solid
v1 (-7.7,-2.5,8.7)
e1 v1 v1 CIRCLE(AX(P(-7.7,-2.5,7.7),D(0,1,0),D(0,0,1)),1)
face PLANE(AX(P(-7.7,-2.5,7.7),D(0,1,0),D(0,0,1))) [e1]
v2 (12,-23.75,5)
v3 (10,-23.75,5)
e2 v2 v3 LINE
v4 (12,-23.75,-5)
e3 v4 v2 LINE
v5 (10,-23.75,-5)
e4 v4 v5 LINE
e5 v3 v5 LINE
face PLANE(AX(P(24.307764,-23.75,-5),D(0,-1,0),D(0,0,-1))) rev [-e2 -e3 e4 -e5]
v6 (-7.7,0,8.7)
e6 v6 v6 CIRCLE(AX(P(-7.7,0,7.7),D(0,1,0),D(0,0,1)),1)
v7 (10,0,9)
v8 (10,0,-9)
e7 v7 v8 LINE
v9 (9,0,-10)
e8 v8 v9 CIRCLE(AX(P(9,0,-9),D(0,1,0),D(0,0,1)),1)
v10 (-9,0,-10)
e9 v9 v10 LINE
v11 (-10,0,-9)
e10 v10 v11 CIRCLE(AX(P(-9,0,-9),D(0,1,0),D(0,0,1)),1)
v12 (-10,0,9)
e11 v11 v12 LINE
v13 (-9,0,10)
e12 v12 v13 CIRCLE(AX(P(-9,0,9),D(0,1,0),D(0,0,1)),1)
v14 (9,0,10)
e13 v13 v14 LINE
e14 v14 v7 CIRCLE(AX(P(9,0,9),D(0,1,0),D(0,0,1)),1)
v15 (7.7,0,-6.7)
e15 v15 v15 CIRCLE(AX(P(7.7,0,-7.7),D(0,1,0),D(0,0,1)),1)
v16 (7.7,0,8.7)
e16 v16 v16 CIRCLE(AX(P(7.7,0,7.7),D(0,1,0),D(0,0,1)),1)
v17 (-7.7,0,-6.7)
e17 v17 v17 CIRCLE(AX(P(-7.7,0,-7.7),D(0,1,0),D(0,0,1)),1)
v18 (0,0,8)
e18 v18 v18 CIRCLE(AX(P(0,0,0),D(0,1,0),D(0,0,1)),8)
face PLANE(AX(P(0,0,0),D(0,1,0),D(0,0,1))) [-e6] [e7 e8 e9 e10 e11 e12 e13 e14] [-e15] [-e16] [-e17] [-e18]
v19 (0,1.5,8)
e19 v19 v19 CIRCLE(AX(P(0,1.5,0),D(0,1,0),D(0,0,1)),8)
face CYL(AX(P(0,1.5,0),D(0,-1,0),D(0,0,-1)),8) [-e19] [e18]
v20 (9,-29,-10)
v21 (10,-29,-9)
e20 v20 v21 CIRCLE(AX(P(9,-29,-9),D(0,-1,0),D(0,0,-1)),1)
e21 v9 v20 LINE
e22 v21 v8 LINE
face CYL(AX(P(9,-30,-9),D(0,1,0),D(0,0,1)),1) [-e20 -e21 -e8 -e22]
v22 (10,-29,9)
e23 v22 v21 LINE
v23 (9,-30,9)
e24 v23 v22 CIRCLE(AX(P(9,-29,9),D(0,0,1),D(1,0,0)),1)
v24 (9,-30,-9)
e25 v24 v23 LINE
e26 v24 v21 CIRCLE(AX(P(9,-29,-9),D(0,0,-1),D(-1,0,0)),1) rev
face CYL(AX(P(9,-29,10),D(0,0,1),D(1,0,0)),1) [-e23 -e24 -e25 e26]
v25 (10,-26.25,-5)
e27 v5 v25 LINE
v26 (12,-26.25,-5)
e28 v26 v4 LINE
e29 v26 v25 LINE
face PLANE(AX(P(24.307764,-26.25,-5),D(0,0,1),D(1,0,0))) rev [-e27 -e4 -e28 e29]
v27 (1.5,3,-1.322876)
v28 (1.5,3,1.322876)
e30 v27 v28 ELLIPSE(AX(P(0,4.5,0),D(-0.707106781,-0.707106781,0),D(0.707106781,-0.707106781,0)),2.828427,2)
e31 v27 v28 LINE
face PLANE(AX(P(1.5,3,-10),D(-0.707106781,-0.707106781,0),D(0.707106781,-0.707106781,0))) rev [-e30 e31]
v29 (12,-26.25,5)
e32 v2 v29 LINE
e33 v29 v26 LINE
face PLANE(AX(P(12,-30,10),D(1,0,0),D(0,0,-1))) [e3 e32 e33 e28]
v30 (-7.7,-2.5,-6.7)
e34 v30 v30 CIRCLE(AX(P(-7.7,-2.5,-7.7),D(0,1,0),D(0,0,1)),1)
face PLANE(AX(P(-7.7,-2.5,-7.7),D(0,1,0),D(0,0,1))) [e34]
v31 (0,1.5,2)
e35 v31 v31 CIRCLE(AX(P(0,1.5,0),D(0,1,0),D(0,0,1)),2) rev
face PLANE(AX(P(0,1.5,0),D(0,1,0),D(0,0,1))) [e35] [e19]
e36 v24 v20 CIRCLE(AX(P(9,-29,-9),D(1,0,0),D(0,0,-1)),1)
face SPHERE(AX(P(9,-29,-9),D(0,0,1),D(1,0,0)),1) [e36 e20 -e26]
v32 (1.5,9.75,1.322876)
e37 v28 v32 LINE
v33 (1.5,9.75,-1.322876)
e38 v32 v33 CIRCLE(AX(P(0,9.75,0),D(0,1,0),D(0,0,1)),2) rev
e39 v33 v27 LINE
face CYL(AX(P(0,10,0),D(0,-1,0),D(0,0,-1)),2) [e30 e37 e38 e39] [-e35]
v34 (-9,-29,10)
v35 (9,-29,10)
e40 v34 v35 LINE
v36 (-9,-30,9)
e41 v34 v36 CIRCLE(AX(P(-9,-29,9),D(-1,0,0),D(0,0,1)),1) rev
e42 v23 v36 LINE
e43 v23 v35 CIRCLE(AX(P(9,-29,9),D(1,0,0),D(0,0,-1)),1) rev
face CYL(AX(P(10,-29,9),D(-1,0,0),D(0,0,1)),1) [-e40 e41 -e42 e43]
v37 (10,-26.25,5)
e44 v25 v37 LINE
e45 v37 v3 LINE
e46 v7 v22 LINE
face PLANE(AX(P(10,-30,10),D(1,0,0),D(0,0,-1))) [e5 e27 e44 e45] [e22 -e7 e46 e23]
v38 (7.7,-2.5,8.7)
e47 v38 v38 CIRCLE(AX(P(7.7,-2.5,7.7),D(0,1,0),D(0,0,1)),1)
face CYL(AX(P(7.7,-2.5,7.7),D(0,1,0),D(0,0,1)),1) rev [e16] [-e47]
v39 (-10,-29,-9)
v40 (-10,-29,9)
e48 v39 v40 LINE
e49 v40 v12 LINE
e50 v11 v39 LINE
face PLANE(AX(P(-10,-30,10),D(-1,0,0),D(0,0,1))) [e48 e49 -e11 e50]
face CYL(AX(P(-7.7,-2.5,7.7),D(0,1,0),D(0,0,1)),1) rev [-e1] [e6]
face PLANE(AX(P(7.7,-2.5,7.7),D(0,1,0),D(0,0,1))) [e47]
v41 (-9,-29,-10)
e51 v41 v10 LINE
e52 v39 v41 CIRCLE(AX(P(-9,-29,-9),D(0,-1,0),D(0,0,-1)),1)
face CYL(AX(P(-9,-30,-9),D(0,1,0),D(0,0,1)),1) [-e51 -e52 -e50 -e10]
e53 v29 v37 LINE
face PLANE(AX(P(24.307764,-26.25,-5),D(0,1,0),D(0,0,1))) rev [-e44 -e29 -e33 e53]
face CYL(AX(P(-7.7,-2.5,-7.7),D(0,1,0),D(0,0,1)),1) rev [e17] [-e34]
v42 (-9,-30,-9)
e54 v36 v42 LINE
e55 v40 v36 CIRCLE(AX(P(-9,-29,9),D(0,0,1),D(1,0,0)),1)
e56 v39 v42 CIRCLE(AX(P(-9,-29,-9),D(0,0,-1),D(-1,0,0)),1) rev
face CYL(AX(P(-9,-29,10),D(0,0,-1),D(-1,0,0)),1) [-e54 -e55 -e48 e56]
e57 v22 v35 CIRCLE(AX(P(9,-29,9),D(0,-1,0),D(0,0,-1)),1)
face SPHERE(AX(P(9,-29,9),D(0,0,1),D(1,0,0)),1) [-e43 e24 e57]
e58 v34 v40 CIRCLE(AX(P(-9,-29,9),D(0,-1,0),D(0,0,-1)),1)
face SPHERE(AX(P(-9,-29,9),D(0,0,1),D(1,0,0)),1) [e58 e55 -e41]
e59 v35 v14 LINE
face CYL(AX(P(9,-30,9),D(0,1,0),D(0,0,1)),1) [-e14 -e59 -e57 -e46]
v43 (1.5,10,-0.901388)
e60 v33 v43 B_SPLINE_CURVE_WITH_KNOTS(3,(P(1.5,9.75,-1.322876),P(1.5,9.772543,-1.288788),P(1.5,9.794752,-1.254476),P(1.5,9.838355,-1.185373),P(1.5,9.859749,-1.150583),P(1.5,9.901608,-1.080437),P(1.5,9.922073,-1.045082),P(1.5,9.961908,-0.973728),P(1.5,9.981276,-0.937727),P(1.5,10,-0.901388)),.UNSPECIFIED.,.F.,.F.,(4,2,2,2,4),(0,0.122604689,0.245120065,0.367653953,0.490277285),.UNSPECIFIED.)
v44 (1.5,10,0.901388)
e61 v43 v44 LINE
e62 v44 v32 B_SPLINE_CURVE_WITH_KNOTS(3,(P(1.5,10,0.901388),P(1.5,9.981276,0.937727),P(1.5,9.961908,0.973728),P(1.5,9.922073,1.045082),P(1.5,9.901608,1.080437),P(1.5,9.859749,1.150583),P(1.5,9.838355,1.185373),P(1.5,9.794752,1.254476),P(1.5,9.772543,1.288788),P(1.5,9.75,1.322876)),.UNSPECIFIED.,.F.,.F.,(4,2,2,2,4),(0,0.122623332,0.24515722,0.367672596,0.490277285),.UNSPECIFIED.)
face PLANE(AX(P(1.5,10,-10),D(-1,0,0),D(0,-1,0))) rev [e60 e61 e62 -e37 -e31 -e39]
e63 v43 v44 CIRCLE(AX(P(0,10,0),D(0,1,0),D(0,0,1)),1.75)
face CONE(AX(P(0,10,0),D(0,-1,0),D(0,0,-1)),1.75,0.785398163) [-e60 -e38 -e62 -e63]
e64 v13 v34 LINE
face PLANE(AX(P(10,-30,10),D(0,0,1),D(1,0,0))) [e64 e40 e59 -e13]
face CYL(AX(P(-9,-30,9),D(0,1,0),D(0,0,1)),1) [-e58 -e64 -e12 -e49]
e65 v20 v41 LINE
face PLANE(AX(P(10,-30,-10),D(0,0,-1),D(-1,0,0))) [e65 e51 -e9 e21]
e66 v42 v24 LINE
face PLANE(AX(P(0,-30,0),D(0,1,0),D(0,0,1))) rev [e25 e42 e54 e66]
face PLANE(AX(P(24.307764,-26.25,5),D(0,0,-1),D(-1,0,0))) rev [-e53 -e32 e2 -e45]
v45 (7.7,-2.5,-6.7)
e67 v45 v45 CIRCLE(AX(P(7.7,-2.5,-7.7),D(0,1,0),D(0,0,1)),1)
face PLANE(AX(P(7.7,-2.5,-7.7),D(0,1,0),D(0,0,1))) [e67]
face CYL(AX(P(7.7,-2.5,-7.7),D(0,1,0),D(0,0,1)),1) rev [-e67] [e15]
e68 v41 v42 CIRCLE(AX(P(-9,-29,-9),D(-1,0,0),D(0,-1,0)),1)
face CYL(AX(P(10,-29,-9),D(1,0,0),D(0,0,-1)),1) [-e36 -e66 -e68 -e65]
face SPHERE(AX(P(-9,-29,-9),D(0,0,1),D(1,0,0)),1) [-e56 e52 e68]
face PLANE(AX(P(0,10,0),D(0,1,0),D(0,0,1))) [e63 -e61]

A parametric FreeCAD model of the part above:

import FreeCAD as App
import Part
import Sketcher
from FreeCAD import Vector
Q = App.Units.Quantity


def edges_at(feature, points):
    """Names of the edges that pass closest to the given points."""
    edges = feature.Shape.Edges
    near = lambda p: min(range(len(edges)), key=lambda i: edges[i].distToShape(Part.Vertex(*p))[0])
    return sorted({f"Edge{near(p) + 1}" for p in points})


def add_polygon(sketch, points):
    """Adds a closed chain of lines whose ends are joined by coincident constraints."""
    first, n = sketch.GeometryCount, len(points)
    for a, b in zip(points, points[1:] + points[:1]):
        sketch.addGeometry(Part.LineSegment(App.Vector(*a, 0), App.Vector(*b, 0)), False)
    for i in range(n):
        sketch.addConstraint(Sketcher.Constraint("Coincident", first + i, 2, first + (i + 1) % n, 1))

doc = App.newDocument("Part")
body = doc.addObject("PartDesign::Body", "Body")

sketch1 = body.newObject("Sketcher::SketchObject", "Sketch")
sketch1.AttachmentSupport = (doc.getObject("XZ_Plane"), [""])
sketch1.MapMode = "FlatFace"
add_polygon(sketch1, [(-10, -10), (-10, 10), (10, 10), (10, -10)])
sketch1.addConstraint(Sketcher.Constraint("Vertical", 0))
sketch1.addConstraint(Sketcher.Constraint("Horizontal", 1))
sketch1.addConstraint(Sketcher.Constraint("Vertical", 2))
sketch1.addConstraint(Sketcher.Constraint("Horizontal", 3))
sketch1.addConstraint(Sketcher.Constraint("Symmetric", 0, 2, 2, 2, -1, 1))
sketch1.addConstraint(Sketcher.Constraint("Equal", 3, 0))
sketch1.addConstraint(Sketcher.Constraint("DistanceX", 1, 1, 1, 2, 20.0))
pad1 = body.newObject("PartDesign::Pad", "Pad")
pad1.Profile = sketch1
pad1.Length = 30

sketch2 = body.newObject("Sketcher::SketchObject", "Sketch001")
sketch2.AttachmentSupport = (doc.getObject("XZ_Plane"), [""])
sketch2.MapMode = "FlatFace"
sketch2.addGeometry(Part.Circle(Vector(-7.7, -7.7, 0), Vector(0, 0, 1), 1), False)
sketch2.addGeometry(Part.Circle(Vector(7.7, -7.7, 0), Vector(0, 0, 1), 1), False)
sketch2.addGeometry(Part.Circle(Vector(7.7, 7.7, 0), Vector(0, 0, 1), 1), False)
sketch2.addGeometry(Part.Circle(Vector(-7.7, 7.7, 0), Vector(0, 0, 1), 1), False)
sketch2.addConstraint(Sketcher.Constraint("Equal", 0, 1))
sketch2.addConstraint(Sketcher.Constraint("Equal", 1, 2))
sketch2.addConstraint(Sketcher.Constraint("Equal", 2, 3))
sketch2.addConstraint(Sketcher.Constraint("Symmetric", 0, 3, 2, 3, -1, 1))
sketch2.addConstraint(Sketcher.Constraint("Symmetric", 1, 3, 3, 3, -1, 1))
sketch2.addConstraint(Sketcher.Constraint("Symmetric", 0, 3, 1, 3, -2))
sketch2.addConstraint(Sketcher.Constraint("Diameter", 0, 2.0))
sketch2.addConstraint(Sketcher.Constraint("DistanceX", 0, 3, -1, 1, 7.7))
sketch2.addConstraint(Sketcher.Constraint("DistanceY", 0, 3, -1, 1, 7.7))
pocket1 = body.newObject("PartDesign::Pocket", "Pocket")
pocket1.Profile = sketch2
pocket1.Length = 2.5
pocket1.Reversed = True

sketch3 = body.newObject("Sketcher::SketchObject", "Sketch002")
sketch3.AttachmentSupport = (doc.getObject("XZ_Plane"), [""])
sketch3.MapMode = "FlatFace"
sketch3.addGeometry(Part.Circle(Vector(0, 0, 0), Vector(0, 0, 1), 8), False)
sketch3.addConstraint(Sketcher.Constraint("Coincident", 0, 3, -1, 1))
sketch3.addConstraint(Sketcher.Constraint("Diameter", 0, 16.0))
pad2 = body.newObject("PartDesign::Pad", "Pad001")
pad2.Profile = sketch3
pad2.Length = 1.5
pad2.Reversed = True

sketch4 = body.newObject("Sketcher::SketchObject", "Sketch003")
sketch4.AttachmentSupport = (doc.getObject("XZ_Plane"), [""])
sketch4.MapMode = "FlatFace"
sketch4.addGeometry(Part.Circle(Vector(0, 0, 0), Vector(0, 0, 1), 2), False)
sketch4.addConstraint(Sketcher.Constraint("Coincident", 0, 3, -1, 1))
sketch4.addConstraint(Sketcher.Constraint("Diameter", 0, 4.0))
pad3 = body.newObject("PartDesign::Pad", "Pad002")
pad3.Profile = sketch4
pad3.Length = 10
pad3.Reversed = True

sketch5 = body.newObject("Sketcher::SketchObject", "Sketch004")
sketch5.AttachmentSupport = (doc.getObject("XY_Plane"), [""])
sketch5.MapMode = "FlatFace"
add_polygon(sketch5, [(2, 10), (1.5, 10), (1.5, 3), (2, 2.5)])
sketch5.addConstraint(Sketcher.Constraint("Horizontal", 0))
sketch5.addConstraint(Sketcher.Constraint("Vertical", 1))
sketch5.addConstraint(Sketcher.Constraint("Vertical", 3))
sketch5.addConstraint(Sketcher.Constraint("DistanceY", 1, 2, 1, 1, 7.0))
sketch5.addConstraint(Sketcher.Constraint("Angle", 2, Q("-45 deg")))
sketch5.addConstraint(Sketcher.Constraint("DistanceX", 0, 2, 0, 1, 0.5))
sketch5.addConstraint(Sketcher.Constraint("DistanceY", -1, 1, 0, 2, 10.0))
sketch5.addConstraint(Sketcher.Constraint("DistanceX", -1, 1, 2, 2, 2.0))
pocket2 = body.newObject("PartDesign::Pocket", "Pocket001")
pocket2.Profile = sketch5
pocket2.Type = "ThroughAll"
pocket2.Midplane = True
doc.recompute()

chamfer = body.newObject("PartDesign::Chamfer", "Chamfer")
chamfer.Base = (pocket2, edges_at(pocket2, [(-2, 10, 0)]))
chamfer.Size = 0.25
doc.recompute()

fillet = body.newObject("PartDesign::Fillet", "Fillet")
fillet.Base = (chamfer, edges_at(chamfer, [
    (10, -30, 0),
    (0, -30, -10),
    (-10, -30, 0),
    (0, -30, 10),
    (-10, -15, -10),
    (10, -15, -10),
    (10, -15, 10),
    (-10, -15, 10),
]))
fillet.Radius = 1

sketch6 = body.newObject("Sketcher::SketchObject", "Sketch005")
sketch6.AttachmentSupport = (doc.getObject("YZ_Plane"), [""])
sketch6.MapMode = "FlatFace"
add_polygon(sketch6, [(-23.75, 5), (-26.25, 5), (-26.25, -5), (-23.75, -5)])
sketch6.addConstraint(Sketcher.Constraint("Horizontal", 0))
sketch6.addConstraint(Sketcher.Constraint("Vertical", 1))
sketch6.addConstraint(Sketcher.Constraint("Horizontal", 2))
sketch6.addConstraint(Sketcher.Constraint("Vertical", 3))
sketch6.addConstraint(Sketcher.Constraint("DistanceY", 1, 2, 1, 1, 10.0))
sketch6.addConstraint(Sketcher.Constraint("DistanceX", 0, 2, 0, 1, 2.5))
sketch6.addConstraint(Sketcher.Constraint("DistanceY", -1, 1, 0, 2, 5.0))
sketch6.addConstraint(Sketcher.Constraint("DistanceX", 0, 2, -1, 1, 26.25))
pad4 = body.newObject("PartDesign::Pad", "Pad003")
pad4.Profile = sketch6
pad4.Length = 12

doc.recompute()
